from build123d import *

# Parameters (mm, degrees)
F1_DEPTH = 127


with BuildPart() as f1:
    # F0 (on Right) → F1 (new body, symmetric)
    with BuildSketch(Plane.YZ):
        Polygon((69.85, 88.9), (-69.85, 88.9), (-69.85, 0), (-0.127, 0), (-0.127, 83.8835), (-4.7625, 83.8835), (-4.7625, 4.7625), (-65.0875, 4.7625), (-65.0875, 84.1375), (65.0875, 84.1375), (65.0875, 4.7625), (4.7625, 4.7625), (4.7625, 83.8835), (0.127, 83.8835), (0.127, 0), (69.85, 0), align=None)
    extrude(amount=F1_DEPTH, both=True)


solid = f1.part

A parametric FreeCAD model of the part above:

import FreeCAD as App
import Part
import Sketcher
Q = App.Units.Quantity


def add_polygon(sketch, points):
    """Adds a closed chain of lines whose ends are joined by coincident constraints."""
    first, n = sketch.GeometryCount, len(points)
    for a, b in zip(points, points[1:] + points[:1]):
        sketch.addGeometry(Part.LineSegment(App.Vector(*a, 0), App.Vector(*b, 0)), False)
    for i in range(n):
        sketch.addConstraint(Sketcher.Constraint("Coincident", first + i, 2, first + (i + 1) % n, 1))

doc = App.newDocument("Part")
body = doc.addObject("PartDesign::Body", "Body")

# Sketch on YZ plane
sketch1 = body.newObject("Sketcher::SketchObject", "Sketch")
sketch1.AttachmentSupport = (doc.getObject("YZ_Plane"), [""])
sketch1.MapMode = "FlatFace"
add_polygon(sketch1, [(69.8, 88.9), (-69.8, 88.9), (-69.8, 0), (-0.1, 0), (-0.1, 83.9), (-4.8, 83.9), (-4.8, 4.8), (-65.1, 4.8), (-65.1, 84.1), (65.1, 84.1), (65.1, 4.8), (4.8, 4.8), (4.8, 83.9), (0.1, 83.9), (0.1, 0), (69.8, 0)])  # lines 0-15
sketch1.addConstraint(Sketcher.Constraint("Horizontal", 0))
sketch1.addConstraint(Sketcher.Constraint("Vertical", 1))
sketch1.addConstraint(Sketcher.Constraint("Horizontal", 2))
sketch1.addConstraint(Sketcher.Constraint("Vertical", 3))
sketch1.addConstraint(Sketcher.Constraint("Horizontal", 4))
sketch1.addConstraint(Sketcher.Constraint("Vertical", 5))
sketch1.addConstraint(Sketcher.Constraint("Horizontal", 6))
sketch1.addConstraint(Sketcher.Constraint("Vertical", 7))
sketch1.addConstraint(Sketcher.Constraint("Horizontal", 8))
sketch1.addConstraint(Sketcher.Constraint("Vertical", 9))
sketch1.addConstraint(Sketcher.Constraint("Horizontal", 10))
sketch1.addConstraint(Sketcher.Constraint("Vertical", 11))
sketch1.addConstraint(Sketcher.Constraint("Horizontal", 12))
sketch1.addConstraint(Sketcher.Constraint("Vertical", 13))
sketch1.addConstraint(Sketcher.Constraint("Horizontal", 14))
sketch1.addConstraint(Sketcher.Constraint("Vertical", 15))
sketch1.addConstraint(Sketcher.Constraint("Symmetric", 2, 2, 13, 2, -1, 1))
sketch1.addConstraint(Sketcher.Constraint("Symmetric", 6, 2, 9, 2, -2))
sketch1.addConstraint(Sketcher.Constraint("Symmetric", 4, 2, 11, 2, -2))
sketch1.addConstraint(Sketcher.Constraint("Symmetric", 1, 2, 14, 2, -2))
sketch1.addConstraint(Sketcher.Constraint("DistanceX", 0, 2, 0, 1, Q("5.5 in")))
sketch1.addConstraint(Sketcher.Constraint("DistanceY", 1, 2, 1, 1, Q("3.5 in")))
sketch1.addConstraint(Sketcher.Constraint("DistanceX", 2, 1, 2, 2, Q("2.745 in")))
sketch1.addConstraint(Sketcher.Constraint("DistanceX", 6, 2, 6, 1, Q("2.375 in")))
sketch1.addConstraint(Sketcher.Constraint("DistanceX", 8, 1, 8, 2, Q("5.125 in")))
sketch1.addConstraint(Sketcher.Constraint("DistanceY", 5, 2, 5, 1, Q("3.115 in")))
sketch1.addConstraint(Sketcher.Constraint("DistanceY", 7, 1, 7, 2, Q("3.125 in")))
sketch1.addConstraint(Sketcher.Constraint("DistanceY", 3, 1, 3, 2, Q("3.3025 in")))
pad1 = body.newObject("PartDesign::Pad", "Pad")
pad1.Profile = sketch1
pad1.Length = Q("10 in")
pad1.Midplane = True

doc.recompute()
